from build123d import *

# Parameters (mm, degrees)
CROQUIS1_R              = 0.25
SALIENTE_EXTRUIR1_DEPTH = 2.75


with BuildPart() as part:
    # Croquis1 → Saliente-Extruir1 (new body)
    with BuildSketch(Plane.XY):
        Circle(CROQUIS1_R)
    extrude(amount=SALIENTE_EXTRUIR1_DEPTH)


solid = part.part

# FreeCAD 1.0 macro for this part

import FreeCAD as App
import Part
import Sketcher

V = App.Vector

doc = App.newDocument("Part")
body = doc.addObject("PartDesign::Body", "Body")

# Sketch on XY plane
sketch1 = doc.addObject("Sketcher::SketchObject", "Sketch")
body.addObject(sketch1)
sketch1.AttachmentSupport = (doc.XY_Plane, [""])
sketch1.MapMode = "FlatFace"
sketch1.addGeometry(Part.Circle(V(0, 0, 0), V(0, 0, 1), 0.25), False)
sketch1.addConstraint(Sketcher.Constraint("Coincident", 0, 3, -1, 1))
sketch1.addConstraint(Sketcher.Constraint("Diameter", 0, 0.5))
pad1 = doc.addObject("PartDesign::Pad", "Pad")
body.addObject(pad1)
pad1.Profile = sketch1
pad1.Length = 2.75

doc.recompute()
